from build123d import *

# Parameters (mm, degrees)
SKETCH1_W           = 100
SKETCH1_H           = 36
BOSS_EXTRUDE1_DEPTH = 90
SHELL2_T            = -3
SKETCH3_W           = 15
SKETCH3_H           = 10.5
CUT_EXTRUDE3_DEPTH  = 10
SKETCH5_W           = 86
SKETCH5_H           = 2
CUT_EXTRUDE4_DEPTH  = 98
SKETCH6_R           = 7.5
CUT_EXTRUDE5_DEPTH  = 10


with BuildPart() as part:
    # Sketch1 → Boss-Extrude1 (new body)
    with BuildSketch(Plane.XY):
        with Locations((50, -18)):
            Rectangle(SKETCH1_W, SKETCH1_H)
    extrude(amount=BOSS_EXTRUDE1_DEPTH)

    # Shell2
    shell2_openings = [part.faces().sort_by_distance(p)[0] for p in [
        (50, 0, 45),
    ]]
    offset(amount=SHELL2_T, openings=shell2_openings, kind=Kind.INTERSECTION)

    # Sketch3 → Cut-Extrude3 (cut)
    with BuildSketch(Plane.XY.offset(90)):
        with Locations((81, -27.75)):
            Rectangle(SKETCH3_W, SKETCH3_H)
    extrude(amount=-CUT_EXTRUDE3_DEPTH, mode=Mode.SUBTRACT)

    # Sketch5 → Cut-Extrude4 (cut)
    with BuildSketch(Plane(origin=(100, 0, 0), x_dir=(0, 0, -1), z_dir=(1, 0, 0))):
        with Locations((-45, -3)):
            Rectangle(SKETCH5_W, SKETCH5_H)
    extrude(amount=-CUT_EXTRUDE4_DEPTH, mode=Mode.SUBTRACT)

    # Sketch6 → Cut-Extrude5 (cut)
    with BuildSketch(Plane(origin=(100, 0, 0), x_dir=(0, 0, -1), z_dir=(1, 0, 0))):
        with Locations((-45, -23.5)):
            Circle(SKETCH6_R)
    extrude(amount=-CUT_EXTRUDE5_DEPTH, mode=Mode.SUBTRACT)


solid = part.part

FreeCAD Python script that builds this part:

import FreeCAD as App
import Part
import Sketcher

V = App.Vector


def faces_at(feature, points):
    """Names of the faces that lie closest to the given points."""
    faces = feature.Shape.Faces
    near = lambda p: min(range(len(faces)), key=lambda i: faces[i].distToShape(Part.Vertex(*p))[0])
    return sorted({f"Face{near(p) + 1}" for p in points})


def add_polygon(sketch, points):
    """Adds a closed chain of lines whose ends are joined by coincident constraints."""
    first, n = sketch.GeometryCount, len(points)
    for a, b in zip(points, points[1:] + points[:1]):
        sketch.addGeometry(Part.LineSegment(App.Vector(*a, 0), App.Vector(*b, 0)), False)
    for i in range(n):
        sketch.addConstraint(Sketcher.Constraint("Coincident", first + i, 2, first + (i + 1) % n, 1))

doc = App.newDocument("Part")
params = doc.addObject("Spreadsheet::Sheet", "Params")
for row, (alias, value) in enumerate([
    ("sketch1_width", "100 mm"),
    ("sketch1_height", "36 mm"),
    ("pad1_length", "90 mm"),
    ("thickness_wall", "3 mm"),
    ("sketch2_width", "15 mm"),
    ("sketch2_height", "10.5 mm"),
    ("pocket1_length", "10 mm"),
    ("sketch3_width", "2 mm"),
    ("sketch3_height", "86 mm"),
    ("pocket2_length", "98 mm"),
    ("sketch4_diameter", "15 mm"),
    ("pocket3_length", "10 mm"),
], start=1):
    params.set(f"A{row}", alias)
    params.set(f"B{row}", "=" + value)
    params.setAlias(f"B{row}", alias)

body = doc.addObject("PartDesign::Body", "Body")

sketch1 = doc.addObject("Sketcher::SketchObject", "Sketch")
body.addObject(sketch1)
sketch1.AttachmentSupport = (doc.XY_Plane, [""])
sketch1.MapMode = "FlatFace"
add_polygon(sketch1, [(0, 0), (0, -36), (100, -36), (100, 0)])
sketch1.addConstraint([
    Sketcher.Constraint("Vertical", 0),
    Sketcher.Constraint("Horizontal", 1),
    Sketcher.Constraint("Vertical", 2),
    Sketcher.Constraint("Horizontal", 3),
    Sketcher.Constraint("Coincident", 3, 2, -1, 1),
    Sketcher.Constraint("DistanceX", 1, 1, 1, 2, 100.0),
    Sketcher.Constraint("DistanceY", 0, 2, 0, 1, 36.0),
])
sketch1.setExpression("Constraints[9]", "Params.sketch1_width")
sketch1.setExpression("Constraints[10]", "Params.sketch1_height")
pad1 = doc.addObject("PartDesign::Pad", "Pad")
body.addObject(pad1)
pad1.Profile = sketch1
pad1.setExpression("Length", "Params.pad1_length")
doc.recompute()

thickness = doc.addObject("PartDesign::Thickness", "Thickness")
body.addObject(thickness)
thickness.Base = (pad1, faces_at(pad1, [(50, 0, 45)]))
thickness.setExpression("Value", "Params.thickness_wall")
thickness.Reversed = True
thickness.Join = "Intersection"

sketch2 = doc.addObject("Sketcher::SketchObject", "Sketch001")
body.addObject(sketch2)
sketch2.AttachmentSupport = (doc.XY_Plane, [""])
sketch2.MapMode = "FlatFace"
sketch2.AttachmentOffset = App.Placement(V(0, 0, 90), App.Rotation())
add_polygon(sketch2, [(73.5, -22.5), (73.5, -33), (88.5, -33), (88.5, -22.5)])
sketch2.addConstraint([
    Sketcher.Constraint("Vertical", 0),
    Sketcher.Constraint("Horizontal", 1),
    Sketcher.Constraint("Vertical", 2),
    Sketcher.Constraint("Horizontal", 3),
    Sketcher.Constraint("DistanceX", 1, 1, 1, 2, 15.0),
    Sketcher.Constraint("DistanceY", 0, 2, 0, 1, 10.5),
    Sketcher.Constraint("DistanceY", 0, 2, -1, 1, 33.0),
    Sketcher.Constraint("DistanceX", -1, 1, 0, 2, 73.5),
])
sketch2.setExpression("Constraints[8]", "Params.sketch2_width")
sketch2.setExpression("Constraints[9]", "Params.sketch2_height")
pocket1 = doc.addObject("PartDesign::Pocket", "Pocket")
body.addObject(pocket1)
pocket1.Profile = sketch2
pocket1.setExpression("Length", "Params.pocket1_length")

sketch3 = doc.addObject("Sketcher::SketchObject", "Sketch002")
body.addObject(sketch3)
sketch3.AttachmentSupport = (doc.YZ_Plane, [""])
sketch3.MapMode = "FlatFace"
sketch3.AttachmentOffset = App.Placement(V(0, 0, 100), App.Rotation())
add_polygon(sketch3, [(-2, 88), (-4, 88), (-4, 2), (-2, 2)])
sketch3.addConstraint([
    Sketcher.Constraint("Horizontal", 0),
    Sketcher.Constraint("Vertical", 1),
    Sketcher.Constraint("Horizontal", 2),
    Sketcher.Constraint("Vertical", 3),
    Sketcher.Constraint("DistanceX", 0, 2, 0, 1, 2.0),
    Sketcher.Constraint("DistanceY", 1, 2, 1, 1, 86.0),
    Sketcher.Constraint("DistanceX", 0, 2, -1, 1, 4.0),
    Sketcher.Constraint("DistanceY", -1, 1, 0, 2, 88.0),
])
sketch3.setExpression("Constraints[8]", "Params.sketch3_width")
sketch3.setExpression("Constraints[9]", "Params.sketch3_height")
pocket2 = doc.addObject("PartDesign::Pocket", "Pocket001")
body.addObject(pocket2)
pocket2.Profile = sketch3
pocket2.setExpression("Length", "Params.pocket2_length")

sketch4 = doc.addObject("Sketcher::SketchObject", "Sketch003")
body.addObject(sketch4)
sketch4.AttachmentSupport = (doc.YZ_Plane, [""])
sketch4.MapMode = "FlatFace"
sketch4.AttachmentOffset = App.Placement(V(0, 0, 100), App.Rotation())
sketch4.addGeometry(Part.Circle(V(-23.5, 45, 0), V(0, 0, 1), 7.5), False)
sketch4.addConstraint([
    Sketcher.Constraint("Diameter", 0, 15.0),
    Sketcher.Constraint("DistanceY", -1, 1, 0, 3, 45.0),
    Sketcher.Constraint("DistanceX", 0, 3, -1, 1, 23.5),
])
sketch4.setExpression("Constraints[0]", "Params.sketch4_diameter")
pocket3 = doc.addObject("PartDesign::Pocket", "Pocket002")
body.addObject(pocket3)
pocket3.Profile = sketch4
pocket3.setExpression("Length", "Params.pocket3_length")

doc.recompute()
